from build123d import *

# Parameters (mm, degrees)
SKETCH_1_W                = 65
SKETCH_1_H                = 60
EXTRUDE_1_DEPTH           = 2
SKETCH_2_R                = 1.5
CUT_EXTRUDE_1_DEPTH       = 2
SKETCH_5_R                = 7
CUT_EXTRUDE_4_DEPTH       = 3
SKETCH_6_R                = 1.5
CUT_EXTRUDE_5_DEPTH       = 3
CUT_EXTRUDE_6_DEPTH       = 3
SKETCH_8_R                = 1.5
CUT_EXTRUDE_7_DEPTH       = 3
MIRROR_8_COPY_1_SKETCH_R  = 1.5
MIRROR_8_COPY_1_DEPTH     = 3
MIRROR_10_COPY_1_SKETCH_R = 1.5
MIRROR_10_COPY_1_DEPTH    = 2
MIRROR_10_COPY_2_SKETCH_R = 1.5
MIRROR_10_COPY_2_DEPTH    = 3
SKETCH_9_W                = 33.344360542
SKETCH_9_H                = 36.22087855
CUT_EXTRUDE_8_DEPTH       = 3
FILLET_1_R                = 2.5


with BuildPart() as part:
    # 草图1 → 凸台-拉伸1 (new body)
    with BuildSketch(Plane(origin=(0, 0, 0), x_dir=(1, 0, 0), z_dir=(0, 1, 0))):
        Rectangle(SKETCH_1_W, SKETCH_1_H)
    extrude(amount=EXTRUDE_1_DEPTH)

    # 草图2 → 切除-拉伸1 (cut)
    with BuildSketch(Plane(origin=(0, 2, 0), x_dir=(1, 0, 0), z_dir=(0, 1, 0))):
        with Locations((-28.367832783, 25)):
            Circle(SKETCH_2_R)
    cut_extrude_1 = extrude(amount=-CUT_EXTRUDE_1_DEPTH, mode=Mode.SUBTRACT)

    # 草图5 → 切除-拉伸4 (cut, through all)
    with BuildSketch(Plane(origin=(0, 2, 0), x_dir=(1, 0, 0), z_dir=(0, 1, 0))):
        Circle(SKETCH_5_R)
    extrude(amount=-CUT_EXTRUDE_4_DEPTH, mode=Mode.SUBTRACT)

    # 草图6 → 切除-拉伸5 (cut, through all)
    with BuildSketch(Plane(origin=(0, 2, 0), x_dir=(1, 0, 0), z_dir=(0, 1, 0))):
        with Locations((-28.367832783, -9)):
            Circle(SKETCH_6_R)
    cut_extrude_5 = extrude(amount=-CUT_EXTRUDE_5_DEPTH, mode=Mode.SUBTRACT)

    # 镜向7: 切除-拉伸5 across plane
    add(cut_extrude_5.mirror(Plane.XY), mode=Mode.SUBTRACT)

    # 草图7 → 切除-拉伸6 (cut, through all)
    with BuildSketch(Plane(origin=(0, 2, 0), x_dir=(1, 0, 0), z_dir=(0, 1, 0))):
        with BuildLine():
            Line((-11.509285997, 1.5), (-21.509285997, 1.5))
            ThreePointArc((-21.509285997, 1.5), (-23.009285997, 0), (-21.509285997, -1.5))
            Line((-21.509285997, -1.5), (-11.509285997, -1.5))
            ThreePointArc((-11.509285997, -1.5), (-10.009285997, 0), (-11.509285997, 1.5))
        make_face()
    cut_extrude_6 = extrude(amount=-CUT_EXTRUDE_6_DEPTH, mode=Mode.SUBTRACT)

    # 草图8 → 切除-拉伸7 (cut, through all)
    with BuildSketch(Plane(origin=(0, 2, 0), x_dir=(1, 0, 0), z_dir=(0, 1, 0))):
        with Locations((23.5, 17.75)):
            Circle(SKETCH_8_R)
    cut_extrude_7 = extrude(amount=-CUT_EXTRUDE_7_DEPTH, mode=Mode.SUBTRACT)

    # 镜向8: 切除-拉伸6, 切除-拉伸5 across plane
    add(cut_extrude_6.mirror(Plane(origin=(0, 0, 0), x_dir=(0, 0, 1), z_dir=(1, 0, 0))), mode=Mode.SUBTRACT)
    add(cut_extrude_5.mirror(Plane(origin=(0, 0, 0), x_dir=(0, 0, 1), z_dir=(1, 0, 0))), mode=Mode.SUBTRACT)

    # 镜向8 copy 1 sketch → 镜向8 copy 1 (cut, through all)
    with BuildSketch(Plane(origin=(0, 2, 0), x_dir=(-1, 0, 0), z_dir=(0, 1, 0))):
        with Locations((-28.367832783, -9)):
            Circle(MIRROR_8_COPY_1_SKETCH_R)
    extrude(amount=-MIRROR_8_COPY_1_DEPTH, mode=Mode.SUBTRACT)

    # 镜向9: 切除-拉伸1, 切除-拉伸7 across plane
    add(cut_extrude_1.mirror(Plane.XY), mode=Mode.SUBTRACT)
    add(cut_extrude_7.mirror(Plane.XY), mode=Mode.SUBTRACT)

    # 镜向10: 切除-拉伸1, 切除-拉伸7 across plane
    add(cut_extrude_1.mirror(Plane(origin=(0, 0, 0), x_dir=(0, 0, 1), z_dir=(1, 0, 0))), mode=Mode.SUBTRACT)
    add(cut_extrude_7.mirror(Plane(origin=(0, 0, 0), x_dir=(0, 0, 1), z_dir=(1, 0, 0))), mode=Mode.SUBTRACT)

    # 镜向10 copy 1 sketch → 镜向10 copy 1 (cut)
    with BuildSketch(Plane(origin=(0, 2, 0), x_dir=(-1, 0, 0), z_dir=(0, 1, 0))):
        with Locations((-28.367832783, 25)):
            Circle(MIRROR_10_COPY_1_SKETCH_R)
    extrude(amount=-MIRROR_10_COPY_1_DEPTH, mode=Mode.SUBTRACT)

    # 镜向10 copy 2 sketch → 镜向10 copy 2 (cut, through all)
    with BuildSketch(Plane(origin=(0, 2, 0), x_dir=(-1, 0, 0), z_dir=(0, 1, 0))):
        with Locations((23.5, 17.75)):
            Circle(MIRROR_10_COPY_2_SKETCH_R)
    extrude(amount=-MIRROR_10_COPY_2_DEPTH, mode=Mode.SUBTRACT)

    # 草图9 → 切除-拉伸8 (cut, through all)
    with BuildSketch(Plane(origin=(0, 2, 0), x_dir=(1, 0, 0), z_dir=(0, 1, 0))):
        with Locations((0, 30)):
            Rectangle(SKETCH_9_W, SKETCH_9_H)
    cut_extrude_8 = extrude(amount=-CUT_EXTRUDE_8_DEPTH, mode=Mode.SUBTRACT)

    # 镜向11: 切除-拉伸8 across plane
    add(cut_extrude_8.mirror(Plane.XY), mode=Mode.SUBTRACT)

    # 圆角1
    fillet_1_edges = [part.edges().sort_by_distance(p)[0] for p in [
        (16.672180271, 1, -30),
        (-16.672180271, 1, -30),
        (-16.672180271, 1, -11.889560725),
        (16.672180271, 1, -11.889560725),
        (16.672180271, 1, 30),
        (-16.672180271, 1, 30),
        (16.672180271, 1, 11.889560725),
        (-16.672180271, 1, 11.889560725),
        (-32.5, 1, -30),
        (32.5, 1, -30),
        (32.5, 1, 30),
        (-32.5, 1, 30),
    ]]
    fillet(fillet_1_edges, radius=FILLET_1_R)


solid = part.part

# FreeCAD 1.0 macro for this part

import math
import FreeCAD as App
import Part
import Sketcher

V = App.Vector
Q = App.Units.Quantity


def edges_at(feature, points):
    """Names of the edges that pass closest to the given points."""
    edges = feature.Shape.Edges
    near = lambda p: min(range(len(edges)), key=lambda i: edges[i].distToShape(Part.Vertex(*p))[0])
    return sorted({f"Edge{near(p) + 1}" for p in points})

doc = App.newDocument("Part")
body = doc.addObject("PartDesign::Body", "Body")

# Sketch on XZ plane
sketch1 = body.newObject("Sketcher::SketchObject", "Sketch")
sketch1.AttachmentSupport = (doc.getObject("XZ_Plane"), [""])
sketch1.MapMode = "FlatFace"
sketch1.addGeometry([
    Part.LineSegment(V(-32, -30, 0), V(-32, 30, 0)),
    Part.LineSegment(V(-32, 30, 0), V(32, 30, 0)),
    Part.LineSegment(V(32, 30, 0), V(32, -30, 0)),
    Part.LineSegment(V(32, -30, 0), V(-32, -30, 0)),
], False)
sketch1.addConstraint([
    Sketcher.Constraint("Coincident", 0, 2, 1, 1),
    Sketcher.Constraint("Coincident", 1, 2, 2, 1),
    Sketcher.Constraint("Coincident", 2, 2, 3, 1),
    Sketcher.Constraint("Coincident", 3, 2, 0, 1),
    Sketcher.Constraint("Vertical", 0),
    Sketcher.Constraint("Horizontal", 1),
    Sketcher.Constraint("Vertical", 2),
    Sketcher.Constraint("Horizontal", 3),
    Sketcher.Constraint("Symmetric", 0, 2, 2, 2, -1, 1),
    Sketcher.Constraint("DistanceX", 1, 1, 1, 2, Q("65 mm")),
    Sketcher.Constraint("DistanceY", 0, 1, 0, 2, Q("60 mm")),
])
pad1 = body.newObject("PartDesign::Pad", "Pad")
pad1.Profile = sketch1
pad1.Length = 2
pad1.Reversed = True

# Sketch on XZ plane
sketch2 = body.newObject("Sketcher::SketchObject", "Sketch001")
sketch2.AttachmentSupport = (doc.getObject("XZ_Plane"), [""])
sketch2.MapMode = "FlatFace"
sketch2.AttachmentOffset = App.Placement(V(0, 0, -2), App.Rotation())
sketch2.addGeometry(Part.Circle(V(-28.4, -25, 0), V(0, 0, 1), 1.5), False)
sketch2.addConstraint([
    Sketcher.Constraint("Diameter", 0, Q("3 mm")),
    Sketcher.Constraint("DistanceY", 0, 3, -1, 1, Q("25 mm")),
    Sketcher.Constraint("DistanceX", 0, 3, -1, 1, Q("28.367833 mm")),
])
pocket1 = body.newObject("PartDesign::Pocket", "Pocket")
pocket1.Profile = sketch2
pocket1.Length = 2
pocket1.Reversed = True

# Sketch on XZ plane
sketch3 = body.newObject("Sketcher::SketchObject", "Sketch002")
sketch3.AttachmentSupport = (doc.getObject("XZ_Plane"), [""])
sketch3.MapMode = "FlatFace"
sketch3.AttachmentOffset = App.Placement(V(0, 0, -2), App.Rotation())
sketch3.addGeometry(Part.Circle(V(0, 0, 0), V(0, 0, 1), 7), False)
sketch3.addConstraint([
    Sketcher.Constraint("Coincident", 0, 3, -1, 1),
    Sketcher.Constraint("Diameter", 0, Q("14 mm")),
])
pocket2 = body.newObject("PartDesign::Pocket", "Pocket001")
pocket2.Profile = sketch3
pocket2.Type = "ThroughAll"
pocket2.Reversed = True

# Sketch on XZ plane
sketch4 = body.newObject("Sketcher::SketchObject", "Sketch003")
sketch4.AttachmentSupport = (doc.getObject("XZ_Plane"), [""])
sketch4.MapMode = "FlatFace"
sketch4.AttachmentOffset = App.Placement(V(0, 0, -2), App.Rotation())
sketch4.addGeometry(Part.Circle(V(-28.4, 9, 0), V(0, 0, 1), 1.5), False)
sketch4.addConstraint([
    Sketcher.Constraint("Diameter", 0, Q("3 mm")),
    Sketcher.Constraint("DistanceY", -1, 1, 0, 3, Q("9 mm")),
    Sketcher.Constraint("DistanceX", 0, 3, -1, 1, Q("28.367833 mm")),
])
pocket3 = body.newObject("PartDesign::Pocket", "Pocket002")
pocket3.Profile = sketch4
pocket3.Type = "ThroughAll"
pocket3.Reversed = True
doc.recompute()

mirrored = body.newObject("PartDesign::Mirrored", "Mirrored")
mirrored.Originals = [pocket3]
mirrored.MirrorPlane = (doc.getObject("XY_Plane"), [""])
body.Tip = mirrored

# Sketch on XZ plane
sketch5 = body.newObject("Sketcher::SketchObject", "Sketch004")
sketch5.AttachmentSupport = (doc.getObject("XZ_Plane"), [""])
sketch5.MapMode = "FlatFace"
sketch5.AttachmentOffset = App.Placement(V(0, 0, -2), App.Rotation())
sketch5.addGeometry([
    Part.LineSegment(V(-11.5, -1.5, 0), V(-21.5, -1.5, 0)),
    Part.ArcOfCircle(Part.Circle(V(-21.5, 0, 0), V(0, 0, 1), 1.5), math.radians(90), math.radians(270)),
    Part.LineSegment(V(-21.5, 1.5, 0), V(-11.5, 1.5, 0)),
    Part.ArcOfCircle(Part.Circle(V(-11.5, 0, 0), V(0, 0, 1), 1.5), math.radians(-90), math.radians(90)),
], False)
sketch5.addConstraint([
    Sketcher.Constraint("Tangent", 0, 2, 1, 2),
    Sketcher.Constraint("Tangent", 1, 1, 2, 1),
    Sketcher.Constraint("Tangent", 2, 2, 3, 2),
    Sketcher.Constraint("Tangent", 3, 1, 0, 1),
    Sketcher.Constraint("Horizontal", 0),
    Sketcher.Constraint("Horizontal", 2),
    Sketcher.Constraint("PointOnObject", 1, 3, -1),
    Sketcher.Constraint("Radius", 1, Q("1.5 mm")),
    Sketcher.Constraint("DistanceX", 0, 2, 0, 1, Q("10 mm")),
    Sketcher.Constraint("DistanceX", 1, 3, -1, 1, Q("21.509286 mm")),
])
pocket4 = body.newObject("PartDesign::Pocket", "Pocket003")
pocket4.Profile = sketch5
pocket4.Type = "ThroughAll"
pocket4.Reversed = True

# Sketch on XZ plane
sketch6 = body.newObject("Sketcher::SketchObject", "Sketch005")
sketch6.AttachmentSupport = (doc.getObject("XZ_Plane"), [""])
sketch6.MapMode = "FlatFace"
sketch6.AttachmentOffset = App.Placement(V(0, 0, -2), App.Rotation())
sketch6.addGeometry(Part.Circle(V(23.5, -17.8, 0), V(0, 0, 1), 1.5), False)
sketch6.addConstraint([
    Sketcher.Constraint("Diameter", 0, Q("3 mm")),
    Sketcher.Constraint("DistanceX", -1, 1, 0, 3, Q("23.5 mm")),
    Sketcher.Constraint("DistanceY", 0, 3, -1, 1, Q("17.75 mm")),
])
pocket5 = body.newObject("PartDesign::Pocket", "Pocket004")
pocket5.Profile = sketch6
pocket5.Type = "ThroughAll"
pocket5.Reversed = True
doc.recompute()

mirrored2 = body.newObject("PartDesign::Mirrored", "Mirrored001")
mirrored2.Originals = [pocket4, pocket3]
mirrored2.MirrorPlane = (doc.getObject("YZ_Plane"), [""])
body.Tip = mirrored2

# Sketch on XZ plane
sketch7 = body.newObject("Sketcher::SketchObject", "Sketch006")
sketch7.AttachmentSupport = (doc.getObject("XZ_Plane"), [""])
sketch7.MapMode = "FlatFace"
sketch7.AttachmentOffset = App.Placement(V(0, 0, -2), App.Rotation())
sketch7.addGeometry(Part.Circle(V(28.4, -9, 0), V(0, 0, 1), 1.5), False)
sketch7.addConstraint([
    Sketcher.Constraint("Diameter", 0, Q("3 mm")),
    Sketcher.Constraint("DistanceY", 0, 3, -1, 1, Q("9 mm")),
    Sketcher.Constraint("DistanceX", -1, 1, 0, 3, Q("28.367833 mm")),
])
pocket6 = body.newObject("PartDesign::Pocket", "Pocket005")
pocket6.Profile = sketch7
pocket6.Type = "ThroughAll"
pocket6.Reversed = True
doc.recompute()

mirrored3 = body.newObject("PartDesign::Mirrored", "Mirrored002")
mirrored3.Originals = [pocket1, pocket5]
mirrored3.MirrorPlane = (doc.getObject("XY_Plane"), [""])
body.Tip = mirrored3
doc.recompute()

mirrored4 = body.newObject("PartDesign::Mirrored", "Mirrored003")
mirrored4.Originals = [pocket1, pocket5]
mirrored4.MirrorPlane = (doc.getObject("YZ_Plane"), [""])
body.Tip = mirrored4

# Sketch on XZ plane
sketch8 = body.newObject("Sketcher::SketchObject", "Sketch007")
sketch8.AttachmentSupport = (doc.getObject("XZ_Plane"), [""])
sketch8.MapMode = "FlatFace"
sketch8.AttachmentOffset = App.Placement(V(0, 0, -2), App.Rotation())
sketch8.addGeometry(Part.Circle(V(28.4, 25, 0), V(0, 0, 1), 1.5), False)
sketch8.addConstraint([
    Sketcher.Constraint("Diameter", 0, Q("3 mm")),
    Sketcher.Constraint("DistanceY", -1, 1, 0, 3, Q("25 mm")),
    Sketcher.Constraint("DistanceX", -1, 1, 0, 3, Q("28.367833 mm")),
])
pocket7 = body.newObject("PartDesign::Pocket", "Pocket006")
pocket7.Profile = sketch8
pocket7.Length = 2
pocket7.Reversed = True

# Sketch on XZ plane
sketch9 = body.newObject("Sketcher::SketchObject", "Sketch008")
sketch9.AttachmentSupport = (doc.getObject("XZ_Plane"), [""])
sketch9.MapMode = "FlatFace"
sketch9.AttachmentOffset = App.Placement(V(0, 0, -2), App.Rotation())
sketch9.addGeometry(Part.Circle(V(-23.5, 17.8, 0), V(0, 0, 1), 1.5), False)
sketch9.addConstraint([
    Sketcher.Constraint("Diameter", 0, Q("3 mm")),
    Sketcher.Constraint("DistanceX", 0, 3, -1, 1, Q("23.5 mm")),
    Sketcher.Constraint("DistanceY", -1, 1, 0, 3, Q("17.75 mm")),
])
pocket8 = body.newObject("PartDesign::Pocket", "Pocket007")
pocket8.Profile = sketch9
pocket8.Type = "ThroughAll"
pocket8.Reversed = True

# Sketch on XZ plane
sketch10 = body.newObject("Sketcher::SketchObject", "Sketch009")
sketch10.AttachmentSupport = (doc.getObject("XZ_Plane"), [""])
sketch10.MapMode = "FlatFace"
sketch10.AttachmentOffset = App.Placement(V(0, 0, -2), App.Rotation())
sketch10.addGeometry([
    Part.LineSegment(V(-17, -48, 0), V(-17, -12, 0)),
    Part.LineSegment(V(-17, -12, 0), V(17, -12, 0)),
    Part.LineSegment(V(17, -12, 0), V(17, -48, 0)),
    Part.LineSegment(V(17, -48, 0), V(-17, -48, 0)),
], False)
sketch10.addConstraint([
    Sketcher.Constraint("Coincident", 0, 2, 1, 1),
    Sketcher.Constraint("Coincident", 1, 2, 2, 1),
    Sketcher.Constraint("Coincident", 2, 2, 3, 1),
    Sketcher.Constraint("Coincident", 3, 2, 0, 1),
    Sketcher.Constraint("Vertical", 0),
    Sketcher.Constraint("Horizontal", 1),
    Sketcher.Constraint("Vertical", 2),
    Sketcher.Constraint("Horizontal", 3),
    Sketcher.Constraint("DistanceX", 1, 1, 1, 2, Q("33.344361 mm")),
    Sketcher.Constraint("DistanceY", 0, 1, 0, 2, Q("36.220879 mm")),
    Sketcher.Constraint("DistanceX", 0, 2, -1, 1, Q("16.67218 mm")),
    Sketcher.Constraint("DistanceY", 0, 2, -1, 1, Q("11.889561 mm")),
])
pocket9 = body.newObject("PartDesign::Pocket", "Pocket008")
pocket9.Profile = sketch10
pocket9.Type = "ThroughAll"
pocket9.Reversed = True
doc.recompute()

mirrored5 = body.newObject("PartDesign::Mirrored", "Mirrored004")
mirrored5.Originals = [pocket9]
mirrored5.MirrorPlane = (doc.getObject("XY_Plane"), [""])
body.Tip = mirrored5
doc.recompute()

fillet = body.newObject("PartDesign::Fillet", "Fillet")
fillet.Base = (mirrored5, edges_at(mirrored5, [
    (16.672, 1, -30),
    (-16.672, 1, -30),
    (-16.672, 1, -11.89),
    (16.672, 1, -11.89),
    (16.672, 1, 30),
    (-16.672, 1, 30),
    (16.672, 1, 11.89),
    (-16.672, 1, 11.89),
    (-32.5, 1, -30),
    (32.5, 1, -30),
    (32.5, 1, 30),
    (-32.5, 1, 30),
]))
fillet.Radius = 2.5

doc.recompute()
